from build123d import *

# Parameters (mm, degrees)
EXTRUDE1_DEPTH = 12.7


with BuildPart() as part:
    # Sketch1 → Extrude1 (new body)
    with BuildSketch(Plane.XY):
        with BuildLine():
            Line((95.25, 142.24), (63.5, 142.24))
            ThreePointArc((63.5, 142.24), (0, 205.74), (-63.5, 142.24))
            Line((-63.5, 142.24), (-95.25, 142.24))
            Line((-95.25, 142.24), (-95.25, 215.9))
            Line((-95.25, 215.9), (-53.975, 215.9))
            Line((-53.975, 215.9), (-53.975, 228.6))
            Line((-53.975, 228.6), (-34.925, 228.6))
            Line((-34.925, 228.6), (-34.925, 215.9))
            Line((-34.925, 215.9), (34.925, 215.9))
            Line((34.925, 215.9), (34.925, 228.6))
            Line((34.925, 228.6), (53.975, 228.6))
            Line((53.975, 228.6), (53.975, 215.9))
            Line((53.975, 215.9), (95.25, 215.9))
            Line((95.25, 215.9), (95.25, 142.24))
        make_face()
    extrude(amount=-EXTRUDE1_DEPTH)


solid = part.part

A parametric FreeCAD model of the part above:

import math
import FreeCAD as App
import Part
import Sketcher

V = App.Vector
Q = App.Units.Quantity

doc = App.newDocument("Part")
body = doc.addObject("PartDesign::Body", "Body")

sketch1 = doc.addObject("Sketcher::SketchObject", "Sketch")
body.addObject(sketch1)
sketch1.AttachmentSupport = (doc.XY_Plane, [""])
sketch1.MapMode = "FlatFace"
sketch1.addGeometry(Part.LineSegment(V(64, 142, 0), V(95, 142, 0)), False)
sketch1.addGeometry(Part.LineSegment(V(95, 142, 0), V(95, 216, 0)), False)
sketch1.addGeometry(Part.LineSegment(V(95, 216, 0), V(54, 216, 0)), False)
sketch1.addGeometry(Part.LineSegment(V(54, 216, 0), V(54, 229, 0)), False)
sketch1.addGeometry(Part.LineSegment(V(54, 229, 0), V(35, 229, 0)), False)
sketch1.addGeometry(Part.LineSegment(V(35, 229, 0), V(35, 216, 0)), False)
sketch1.addGeometry(Part.LineSegment(V(35, 216, 0), V(-35, 216, 0)), False)
sketch1.addGeometry(Part.LineSegment(V(-35, 216, 0), V(-35, 229, 0)), False)
sketch1.addGeometry(Part.LineSegment(V(-35, 229, 0), V(-54, 229, 0)), False)
sketch1.addGeometry(Part.LineSegment(V(-54, 229, 0), V(-54, 216, 0)), False)
sketch1.addGeometry(Part.LineSegment(V(-54, 216, 0), V(-95, 216, 0)), False)
sketch1.addGeometry(Part.LineSegment(V(-95, 216, 0), V(-95, 142, 0)), False)
sketch1.addGeometry(Part.LineSegment(V(-95, 142, 0), V(-64, 142, 0)), False)
sketch1.addGeometry(Part.ArcOfCircle(Part.Circle(V(0, 142, 0), V(0, 0, 1), 64), math.radians(0), math.radians(180)), False)
sketch1.addConstraint(Sketcher.Constraint("Coincident", 0, 2, 1, 1))
sketch1.addConstraint(Sketcher.Constraint("Coincident", 1, 2, 2, 1))
sketch1.addConstraint(Sketcher.Constraint("Coincident", 2, 2, 3, 1))
sketch1.addConstraint(Sketcher.Constraint("Coincident", 3, 2, 4, 1))
sketch1.addConstraint(Sketcher.Constraint("Coincident", 4, 2, 5, 1))
sketch1.addConstraint(Sketcher.Constraint("Coincident", 5, 2, 6, 1))
sketch1.addConstraint(Sketcher.Constraint("Coincident", 6, 2, 7, 1))
sketch1.addConstraint(Sketcher.Constraint("Coincident", 7, 2, 8, 1))
sketch1.addConstraint(Sketcher.Constraint("Coincident", 8, 2, 9, 1))
sketch1.addConstraint(Sketcher.Constraint("Coincident", 9, 2, 10, 1))
sketch1.addConstraint(Sketcher.Constraint("Coincident", 10, 2, 11, 1))
sketch1.addConstraint(Sketcher.Constraint("Coincident", 11, 2, 12, 1))
sketch1.addConstraint(Sketcher.Constraint("Coincident", 12, 2, 13, 2))
sketch1.addConstraint(Sketcher.Constraint("Coincident", 13, 1, 0, 1))
sketch1.addConstraint(Sketcher.Constraint("Horizontal", 0))
sketch1.addConstraint(Sketcher.Constraint("Vertical", 1))
sketch1.addConstraint(Sketcher.Constraint("Horizontal", 2))
sketch1.addConstraint(Sketcher.Constraint("Vertical", 3))
sketch1.addConstraint(Sketcher.Constraint("Horizontal", 4))
sketch1.addConstraint(Sketcher.Constraint("Vertical", 5))
sketch1.addConstraint(Sketcher.Constraint("Horizontal", 6))
sketch1.addConstraint(Sketcher.Constraint("Vertical", 7))
sketch1.addConstraint(Sketcher.Constraint("Horizontal", 8))
sketch1.addConstraint(Sketcher.Constraint("Vertical", 9))
sketch1.addConstraint(Sketcher.Constraint("Horizontal", 10))
sketch1.addConstraint(Sketcher.Constraint("Vertical", 11))
sketch1.addConstraint(Sketcher.Constraint("Horizontal", 12))
sketch1.addConstraint(Sketcher.Constraint("Symmetric", 4, 2, 7, 2, -2))
sketch1.addConstraint(Sketcher.Constraint("Symmetric", 2, 2, 9, 2, -2))
sketch1.addConstraint(Sketcher.Constraint("Symmetric", 0, 2, 11, 2, -2))
sketch1.addConstraint(Sketcher.Constraint("PointOnObject", 13, 3, -2))
sketch1.addConstraint(Sketcher.Constraint("Horizontal", 13, 3, 0, 2))
sketch1.addConstraint(Sketcher.Constraint("Horizontal", 2, 2, 5, 2))
sketch1.addConstraint(Sketcher.Constraint("Radius", 13, Q("2.5 in")))
sketch1.addConstraint(Sketcher.Constraint("DistanceY", 1, 1, 1, 2, Q("2.9 in")))
sketch1.addConstraint(Sketcher.Constraint("DistanceY", 3, 1, 3, 2, Q("0.5 in")))
sketch1.addConstraint(Sketcher.Constraint("DistanceY", -1, 1, 3, 2, Q("9 in")))
sketch1.addConstraint(Sketcher.Constraint("DistanceX", 0, 1, 0, 2, Q("1.25 in")))
sketch1.addConstraint(Sketcher.Constraint("DistanceX", 4, 2, 4, 1, Q("0.75 in")))
sketch1.addConstraint(Sketcher.Constraint("DistanceX", 6, 2, 6, 1, Q("2.75 in")))
pad1 = doc.addObject("PartDesign::Pad", "Pad")
body.addObject(pad1)
pad1.Profile = sketch1
pad1.Length = Q("0.5 in")
pad1.Reversed = True

doc.recompute()
